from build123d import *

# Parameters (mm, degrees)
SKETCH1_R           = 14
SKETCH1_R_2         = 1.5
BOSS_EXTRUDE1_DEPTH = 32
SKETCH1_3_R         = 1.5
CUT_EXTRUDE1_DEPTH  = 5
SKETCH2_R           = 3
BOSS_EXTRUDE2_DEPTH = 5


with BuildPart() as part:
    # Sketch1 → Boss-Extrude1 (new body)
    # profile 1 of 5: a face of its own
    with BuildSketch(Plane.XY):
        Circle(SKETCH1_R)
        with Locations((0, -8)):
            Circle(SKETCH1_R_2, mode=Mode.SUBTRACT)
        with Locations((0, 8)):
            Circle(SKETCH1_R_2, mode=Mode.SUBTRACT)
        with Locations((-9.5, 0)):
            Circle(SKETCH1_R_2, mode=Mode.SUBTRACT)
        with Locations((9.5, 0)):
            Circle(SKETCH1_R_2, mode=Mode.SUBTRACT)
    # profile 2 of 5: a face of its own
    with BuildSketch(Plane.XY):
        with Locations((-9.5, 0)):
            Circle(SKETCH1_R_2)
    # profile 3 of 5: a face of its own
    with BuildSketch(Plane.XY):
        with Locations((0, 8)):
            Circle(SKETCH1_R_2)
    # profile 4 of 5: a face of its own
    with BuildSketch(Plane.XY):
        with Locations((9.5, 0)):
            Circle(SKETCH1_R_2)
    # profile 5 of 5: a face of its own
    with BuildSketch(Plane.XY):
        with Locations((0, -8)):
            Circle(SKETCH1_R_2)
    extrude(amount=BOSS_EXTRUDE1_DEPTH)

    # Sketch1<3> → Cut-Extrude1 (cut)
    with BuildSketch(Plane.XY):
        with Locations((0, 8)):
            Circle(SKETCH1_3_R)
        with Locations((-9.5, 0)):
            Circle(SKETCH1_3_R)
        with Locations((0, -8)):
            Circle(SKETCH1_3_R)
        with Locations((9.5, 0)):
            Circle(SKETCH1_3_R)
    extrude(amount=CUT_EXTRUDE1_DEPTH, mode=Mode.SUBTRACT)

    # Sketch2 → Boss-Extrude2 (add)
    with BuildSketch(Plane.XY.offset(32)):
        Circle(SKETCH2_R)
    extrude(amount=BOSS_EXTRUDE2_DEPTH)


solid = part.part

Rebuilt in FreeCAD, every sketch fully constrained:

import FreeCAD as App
import Part
import Sketcher

V = App.Vector
Q = App.Units.Quantity

doc = App.newDocument("Part")
params = doc.addObject("Spreadsheet::Sheet", "Params")
for row, (alias, value) in enumerate([
    ("sketch1_diameter", "28 mm"),
    ("pad1_length", "32 mm"),
    ("sketch2_diameter", "3 mm"),
    ("pocket1_length", "5 mm"),
    ("sketch3_diameter", "6 mm"),
    ("pad2_length", "5 mm"),
], start=1):
    params.set(f"A{row}", alias)
    params.set(f"B{row}", "=" + value)
    params.setAlias(f"B{row}", alias)

body = doc.addObject("PartDesign::Body", "Body")

# Sketch on XY plane
sketch1 = body.newObject("Sketcher::SketchObject", "Sketch")
sketch1.AttachmentSupport = (doc.getObject("XY_Plane"), [""])
sketch1.MapMode = "FlatFace"
sketch1.addGeometry(Part.Circle(V(0, 0, 0), V(0, 0, 1), 14), False)
sketch1.addConstraint([
    Sketcher.Constraint("Coincident", 0, 3, -1, 1),
    Sketcher.Constraint("Diameter", 0, Q("28 mm")),
])
sketch1.setExpression("Constraints[1]", "Params.sketch1_diameter")
pad1 = body.newObject("PartDesign::Pad", "Pad")
pad1.Profile = sketch1
pad1.setExpression("Length", "Params.pad1_length")

# Sketch on XY plane
sketch2 = body.newObject("Sketcher::SketchObject", "Sketch001")
sketch2.AttachmentSupport = (doc.getObject("XY_Plane"), [""])
sketch2.MapMode = "FlatFace"
sketch2.addGeometry([
    Part.Circle(V(0, 8, 0), V(0, 0, 1), 1.5),
    Part.Circle(V(-9.5, 0, 0), V(0, 0, 1), 1.5),
    Part.Circle(V(0, -8, 0), V(0, 0, 1), 1.5),
    Part.Circle(V(9.5, 0, 0), V(0, 0, 1), 1.5),
], False)
sketch2.addConstraint([
    Sketcher.Constraint("Equal", 0, 1),
    Sketcher.Constraint("Equal", 1, 2),
    Sketcher.Constraint("Equal", 2, 3),
    Sketcher.Constraint("Symmetric", 0, 3, 2, 3, -1, 1),
    Sketcher.Constraint("Symmetric", 1, 3, 3, 3, -1, 1),
    Sketcher.Constraint("PointOnObject", 0, 3, -2),
    Sketcher.Constraint("PointOnObject", 1, 3, -1),
    Sketcher.Constraint("Diameter", 0, Q("3 mm")),
    Sketcher.Constraint("DistanceY", -1, 1, 0, 3, Q("8 mm")),
    Sketcher.Constraint("DistanceX", 1, 3, 3, 3, Q("19 mm")),
])
sketch2.setExpression("Constraints[7]", "Params.sketch2_diameter")
pocket1 = body.newObject("PartDesign::Pocket", "Pocket")
pocket1.Profile = sketch2
pocket1.setExpression("Length", "Params.pocket1_length")
pocket1.Reversed = True

# Sketch on XY plane
sketch3 = body.newObject("Sketcher::SketchObject", "Sketch002")
sketch3.AttachmentSupport = (doc.getObject("XY_Plane"), [""])
sketch3.MapMode = "FlatFace"
sketch3.AttachmentOffset = App.Placement(V(0, 0, 32), App.Rotation())
sketch3.addGeometry(Part.Circle(V(0, 0, 0), V(0, 0, 1), 3), False)
sketch3.addConstraint([
    Sketcher.Constraint("Coincident", 0, 3, -1, 1),
    Sketcher.Constraint("Diameter", 0, Q("6 mm")),
])
sketch3.setExpression("Constraints[1]", "Params.sketch3_diameter")
pad2 = body.newObject("PartDesign::Pad", "Pad001")
pad2.Profile = sketch3
pad2.setExpression("Length", "Params.pad2_length")

doc.recompute()
